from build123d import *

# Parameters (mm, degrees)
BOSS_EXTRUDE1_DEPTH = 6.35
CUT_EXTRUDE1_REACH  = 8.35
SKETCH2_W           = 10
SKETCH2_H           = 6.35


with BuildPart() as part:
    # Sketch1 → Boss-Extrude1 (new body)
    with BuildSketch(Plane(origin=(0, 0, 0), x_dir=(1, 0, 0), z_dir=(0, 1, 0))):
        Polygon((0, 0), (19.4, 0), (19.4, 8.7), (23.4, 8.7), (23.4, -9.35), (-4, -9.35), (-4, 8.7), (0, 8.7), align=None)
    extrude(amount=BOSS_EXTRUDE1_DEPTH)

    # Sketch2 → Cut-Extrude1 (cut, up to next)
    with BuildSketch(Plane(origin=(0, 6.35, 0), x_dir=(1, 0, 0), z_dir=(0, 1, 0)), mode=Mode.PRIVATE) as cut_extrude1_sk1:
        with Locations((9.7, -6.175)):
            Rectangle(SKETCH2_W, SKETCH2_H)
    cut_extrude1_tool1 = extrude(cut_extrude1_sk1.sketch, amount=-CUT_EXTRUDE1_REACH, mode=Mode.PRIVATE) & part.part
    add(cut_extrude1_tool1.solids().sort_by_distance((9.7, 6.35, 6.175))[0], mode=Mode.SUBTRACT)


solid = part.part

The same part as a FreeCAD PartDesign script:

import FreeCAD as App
import Part
import Sketcher
from FreeCAD import Vector

doc = App.newDocument("Part")
body = doc.addObject("PartDesign::Body", "Body")

# Sketch on XZ plane
sketch1 = body.newObject("Sketcher::SketchObject", "Sketch")
sketch1.AttachmentSupport = (doc.getObject("XZ_Plane"), [""])
sketch1.MapMode = "FlatFace"
sketch1.addGeometry([
    Part.LineSegment(Vector(19.4, 0, 0), Vector(0, 0, 0)),  # 0
    Part.LineSegment(Vector(0, 0, 0), Vector(0, -8.7, 0)),  # 1
    Part.LineSegment(Vector(0, -8.7, 0), Vector(-4, -8.7, 0)),  # 2
    Part.LineSegment(Vector(-4, -8.7, 0), Vector(-4, 9.3, 0)),  # 3
    Part.LineSegment(Vector(-4, 9.3, 0), Vector(23.4, 9.3, 0)),  # 4
    Part.LineSegment(Vector(23.4, 9.3, 0), Vector(23.4, -8.7, 0)),  # 5
    Part.LineSegment(Vector(23.4, -8.7, 0), Vector(19.4, -8.7, 0)),  # 6
    Part.LineSegment(Vector(19.4, -8.7, 0), Vector(19.4, 0, 0)),  # 7
], False)
sketch1.addConstraint([
    Sketcher.Constraint("Coincident", 0, 2, 1, 1),
    Sketcher.Constraint("Coincident", 1, 2, 2, 1),
    Sketcher.Constraint("Coincident", 2, 2, 3, 1),
    Sketcher.Constraint("Coincident", 3, 2, 4, 1),
    Sketcher.Constraint("Coincident", 4, 2, 5, 1),
    Sketcher.Constraint("Coincident", 5, 2, 6, 1),
    Sketcher.Constraint("Coincident", 6, 2, 7, 1),
    Sketcher.Constraint("Coincident", 7, 2, 0, 1),
    Sketcher.Constraint("Horizontal", 0),
    Sketcher.Constraint("Vertical", 1),
    Sketcher.Constraint("Horizontal", 2),
    Sketcher.Constraint("Vertical", 3),
    Sketcher.Constraint("Horizontal", 4),
    Sketcher.Constraint("Vertical", 5),
    Sketcher.Constraint("Horizontal", 6),
    Sketcher.Constraint("Vertical", 7),
    Sketcher.Constraint("Coincident", 0, 2, -1, 1),
    Sketcher.Constraint("Horizontal", 2, 2, 5, 2),
    Sketcher.Constraint("Equal", 2, 6),
    Sketcher.Constraint("DistanceX", 2, 2, 2, 1, 4.0),
    Sketcher.Constraint("DistanceX", 0, 2, 0, 1, 19.4),
    Sketcher.Constraint("DistanceY", 1, 2, 1, 1, 8.7),
    Sketcher.Constraint("DistanceY", 3, 1, 3, 2, 18.05),
])
pad1 = body.newObject("PartDesign::Pad", "Pad")
pad1.Profile = sketch1
pad1.Length = 6.35
pad1.Reversed = True

# Sketch on XZ plane
sketch2 = body.newObject("Sketcher::SketchObject", "Sketch001")
sketch2.AttachmentSupport = (doc.getObject("XZ_Plane"), [""])
sketch2.MapMode = "FlatFace"
sketch2.AttachmentOffset = App.Placement(Vector(0, 0, -6.35), App.Rotation())
sketch2.addGeometry([
    Part.LineSegment(Vector(5, 3, 0), Vector(5, 9, 0)),
    Part.LineSegment(Vector(5, 9, 0), Vector(15, 9, 0)),
    Part.LineSegment(Vector(15, 9, 0), Vector(15, 3, 0)),
    Part.LineSegment(Vector(15, 3, 0), Vector(5, 3, 0)),
], False)
sketch2.addConstraint([
    Sketcher.Constraint("Coincident", 0, 2, 1, 1),
    Sketcher.Constraint("Coincident", 1, 2, 2, 1),
    Sketcher.Constraint("Coincident", 2, 2, 3, 1),
    Sketcher.Constraint("Coincident", 3, 2, 0, 1),
    Sketcher.Constraint("Vertical", 0),
    Sketcher.Constraint("Horizontal", 1),
    Sketcher.Constraint("Vertical", 2),
    Sketcher.Constraint("Horizontal", 3),
    Sketcher.Constraint("DistanceX", 1, 1, 1, 2, 10.0),
    Sketcher.Constraint("DistanceY", -1, 1, 2, 2, 3.0),
    Sketcher.Constraint("DistanceY", 0, 1, 0, 2, 6.35),
    Sketcher.Constraint("DistanceX", -1, 1, 0, 2, 4.7),
])
pocket1 = body.newObject("PartDesign::Pocket", "Pocket")
pocket1.Profile = sketch2
pocket1.Type = "UpToFirst"
pocket1.Reversed = True

doc.recompute()
